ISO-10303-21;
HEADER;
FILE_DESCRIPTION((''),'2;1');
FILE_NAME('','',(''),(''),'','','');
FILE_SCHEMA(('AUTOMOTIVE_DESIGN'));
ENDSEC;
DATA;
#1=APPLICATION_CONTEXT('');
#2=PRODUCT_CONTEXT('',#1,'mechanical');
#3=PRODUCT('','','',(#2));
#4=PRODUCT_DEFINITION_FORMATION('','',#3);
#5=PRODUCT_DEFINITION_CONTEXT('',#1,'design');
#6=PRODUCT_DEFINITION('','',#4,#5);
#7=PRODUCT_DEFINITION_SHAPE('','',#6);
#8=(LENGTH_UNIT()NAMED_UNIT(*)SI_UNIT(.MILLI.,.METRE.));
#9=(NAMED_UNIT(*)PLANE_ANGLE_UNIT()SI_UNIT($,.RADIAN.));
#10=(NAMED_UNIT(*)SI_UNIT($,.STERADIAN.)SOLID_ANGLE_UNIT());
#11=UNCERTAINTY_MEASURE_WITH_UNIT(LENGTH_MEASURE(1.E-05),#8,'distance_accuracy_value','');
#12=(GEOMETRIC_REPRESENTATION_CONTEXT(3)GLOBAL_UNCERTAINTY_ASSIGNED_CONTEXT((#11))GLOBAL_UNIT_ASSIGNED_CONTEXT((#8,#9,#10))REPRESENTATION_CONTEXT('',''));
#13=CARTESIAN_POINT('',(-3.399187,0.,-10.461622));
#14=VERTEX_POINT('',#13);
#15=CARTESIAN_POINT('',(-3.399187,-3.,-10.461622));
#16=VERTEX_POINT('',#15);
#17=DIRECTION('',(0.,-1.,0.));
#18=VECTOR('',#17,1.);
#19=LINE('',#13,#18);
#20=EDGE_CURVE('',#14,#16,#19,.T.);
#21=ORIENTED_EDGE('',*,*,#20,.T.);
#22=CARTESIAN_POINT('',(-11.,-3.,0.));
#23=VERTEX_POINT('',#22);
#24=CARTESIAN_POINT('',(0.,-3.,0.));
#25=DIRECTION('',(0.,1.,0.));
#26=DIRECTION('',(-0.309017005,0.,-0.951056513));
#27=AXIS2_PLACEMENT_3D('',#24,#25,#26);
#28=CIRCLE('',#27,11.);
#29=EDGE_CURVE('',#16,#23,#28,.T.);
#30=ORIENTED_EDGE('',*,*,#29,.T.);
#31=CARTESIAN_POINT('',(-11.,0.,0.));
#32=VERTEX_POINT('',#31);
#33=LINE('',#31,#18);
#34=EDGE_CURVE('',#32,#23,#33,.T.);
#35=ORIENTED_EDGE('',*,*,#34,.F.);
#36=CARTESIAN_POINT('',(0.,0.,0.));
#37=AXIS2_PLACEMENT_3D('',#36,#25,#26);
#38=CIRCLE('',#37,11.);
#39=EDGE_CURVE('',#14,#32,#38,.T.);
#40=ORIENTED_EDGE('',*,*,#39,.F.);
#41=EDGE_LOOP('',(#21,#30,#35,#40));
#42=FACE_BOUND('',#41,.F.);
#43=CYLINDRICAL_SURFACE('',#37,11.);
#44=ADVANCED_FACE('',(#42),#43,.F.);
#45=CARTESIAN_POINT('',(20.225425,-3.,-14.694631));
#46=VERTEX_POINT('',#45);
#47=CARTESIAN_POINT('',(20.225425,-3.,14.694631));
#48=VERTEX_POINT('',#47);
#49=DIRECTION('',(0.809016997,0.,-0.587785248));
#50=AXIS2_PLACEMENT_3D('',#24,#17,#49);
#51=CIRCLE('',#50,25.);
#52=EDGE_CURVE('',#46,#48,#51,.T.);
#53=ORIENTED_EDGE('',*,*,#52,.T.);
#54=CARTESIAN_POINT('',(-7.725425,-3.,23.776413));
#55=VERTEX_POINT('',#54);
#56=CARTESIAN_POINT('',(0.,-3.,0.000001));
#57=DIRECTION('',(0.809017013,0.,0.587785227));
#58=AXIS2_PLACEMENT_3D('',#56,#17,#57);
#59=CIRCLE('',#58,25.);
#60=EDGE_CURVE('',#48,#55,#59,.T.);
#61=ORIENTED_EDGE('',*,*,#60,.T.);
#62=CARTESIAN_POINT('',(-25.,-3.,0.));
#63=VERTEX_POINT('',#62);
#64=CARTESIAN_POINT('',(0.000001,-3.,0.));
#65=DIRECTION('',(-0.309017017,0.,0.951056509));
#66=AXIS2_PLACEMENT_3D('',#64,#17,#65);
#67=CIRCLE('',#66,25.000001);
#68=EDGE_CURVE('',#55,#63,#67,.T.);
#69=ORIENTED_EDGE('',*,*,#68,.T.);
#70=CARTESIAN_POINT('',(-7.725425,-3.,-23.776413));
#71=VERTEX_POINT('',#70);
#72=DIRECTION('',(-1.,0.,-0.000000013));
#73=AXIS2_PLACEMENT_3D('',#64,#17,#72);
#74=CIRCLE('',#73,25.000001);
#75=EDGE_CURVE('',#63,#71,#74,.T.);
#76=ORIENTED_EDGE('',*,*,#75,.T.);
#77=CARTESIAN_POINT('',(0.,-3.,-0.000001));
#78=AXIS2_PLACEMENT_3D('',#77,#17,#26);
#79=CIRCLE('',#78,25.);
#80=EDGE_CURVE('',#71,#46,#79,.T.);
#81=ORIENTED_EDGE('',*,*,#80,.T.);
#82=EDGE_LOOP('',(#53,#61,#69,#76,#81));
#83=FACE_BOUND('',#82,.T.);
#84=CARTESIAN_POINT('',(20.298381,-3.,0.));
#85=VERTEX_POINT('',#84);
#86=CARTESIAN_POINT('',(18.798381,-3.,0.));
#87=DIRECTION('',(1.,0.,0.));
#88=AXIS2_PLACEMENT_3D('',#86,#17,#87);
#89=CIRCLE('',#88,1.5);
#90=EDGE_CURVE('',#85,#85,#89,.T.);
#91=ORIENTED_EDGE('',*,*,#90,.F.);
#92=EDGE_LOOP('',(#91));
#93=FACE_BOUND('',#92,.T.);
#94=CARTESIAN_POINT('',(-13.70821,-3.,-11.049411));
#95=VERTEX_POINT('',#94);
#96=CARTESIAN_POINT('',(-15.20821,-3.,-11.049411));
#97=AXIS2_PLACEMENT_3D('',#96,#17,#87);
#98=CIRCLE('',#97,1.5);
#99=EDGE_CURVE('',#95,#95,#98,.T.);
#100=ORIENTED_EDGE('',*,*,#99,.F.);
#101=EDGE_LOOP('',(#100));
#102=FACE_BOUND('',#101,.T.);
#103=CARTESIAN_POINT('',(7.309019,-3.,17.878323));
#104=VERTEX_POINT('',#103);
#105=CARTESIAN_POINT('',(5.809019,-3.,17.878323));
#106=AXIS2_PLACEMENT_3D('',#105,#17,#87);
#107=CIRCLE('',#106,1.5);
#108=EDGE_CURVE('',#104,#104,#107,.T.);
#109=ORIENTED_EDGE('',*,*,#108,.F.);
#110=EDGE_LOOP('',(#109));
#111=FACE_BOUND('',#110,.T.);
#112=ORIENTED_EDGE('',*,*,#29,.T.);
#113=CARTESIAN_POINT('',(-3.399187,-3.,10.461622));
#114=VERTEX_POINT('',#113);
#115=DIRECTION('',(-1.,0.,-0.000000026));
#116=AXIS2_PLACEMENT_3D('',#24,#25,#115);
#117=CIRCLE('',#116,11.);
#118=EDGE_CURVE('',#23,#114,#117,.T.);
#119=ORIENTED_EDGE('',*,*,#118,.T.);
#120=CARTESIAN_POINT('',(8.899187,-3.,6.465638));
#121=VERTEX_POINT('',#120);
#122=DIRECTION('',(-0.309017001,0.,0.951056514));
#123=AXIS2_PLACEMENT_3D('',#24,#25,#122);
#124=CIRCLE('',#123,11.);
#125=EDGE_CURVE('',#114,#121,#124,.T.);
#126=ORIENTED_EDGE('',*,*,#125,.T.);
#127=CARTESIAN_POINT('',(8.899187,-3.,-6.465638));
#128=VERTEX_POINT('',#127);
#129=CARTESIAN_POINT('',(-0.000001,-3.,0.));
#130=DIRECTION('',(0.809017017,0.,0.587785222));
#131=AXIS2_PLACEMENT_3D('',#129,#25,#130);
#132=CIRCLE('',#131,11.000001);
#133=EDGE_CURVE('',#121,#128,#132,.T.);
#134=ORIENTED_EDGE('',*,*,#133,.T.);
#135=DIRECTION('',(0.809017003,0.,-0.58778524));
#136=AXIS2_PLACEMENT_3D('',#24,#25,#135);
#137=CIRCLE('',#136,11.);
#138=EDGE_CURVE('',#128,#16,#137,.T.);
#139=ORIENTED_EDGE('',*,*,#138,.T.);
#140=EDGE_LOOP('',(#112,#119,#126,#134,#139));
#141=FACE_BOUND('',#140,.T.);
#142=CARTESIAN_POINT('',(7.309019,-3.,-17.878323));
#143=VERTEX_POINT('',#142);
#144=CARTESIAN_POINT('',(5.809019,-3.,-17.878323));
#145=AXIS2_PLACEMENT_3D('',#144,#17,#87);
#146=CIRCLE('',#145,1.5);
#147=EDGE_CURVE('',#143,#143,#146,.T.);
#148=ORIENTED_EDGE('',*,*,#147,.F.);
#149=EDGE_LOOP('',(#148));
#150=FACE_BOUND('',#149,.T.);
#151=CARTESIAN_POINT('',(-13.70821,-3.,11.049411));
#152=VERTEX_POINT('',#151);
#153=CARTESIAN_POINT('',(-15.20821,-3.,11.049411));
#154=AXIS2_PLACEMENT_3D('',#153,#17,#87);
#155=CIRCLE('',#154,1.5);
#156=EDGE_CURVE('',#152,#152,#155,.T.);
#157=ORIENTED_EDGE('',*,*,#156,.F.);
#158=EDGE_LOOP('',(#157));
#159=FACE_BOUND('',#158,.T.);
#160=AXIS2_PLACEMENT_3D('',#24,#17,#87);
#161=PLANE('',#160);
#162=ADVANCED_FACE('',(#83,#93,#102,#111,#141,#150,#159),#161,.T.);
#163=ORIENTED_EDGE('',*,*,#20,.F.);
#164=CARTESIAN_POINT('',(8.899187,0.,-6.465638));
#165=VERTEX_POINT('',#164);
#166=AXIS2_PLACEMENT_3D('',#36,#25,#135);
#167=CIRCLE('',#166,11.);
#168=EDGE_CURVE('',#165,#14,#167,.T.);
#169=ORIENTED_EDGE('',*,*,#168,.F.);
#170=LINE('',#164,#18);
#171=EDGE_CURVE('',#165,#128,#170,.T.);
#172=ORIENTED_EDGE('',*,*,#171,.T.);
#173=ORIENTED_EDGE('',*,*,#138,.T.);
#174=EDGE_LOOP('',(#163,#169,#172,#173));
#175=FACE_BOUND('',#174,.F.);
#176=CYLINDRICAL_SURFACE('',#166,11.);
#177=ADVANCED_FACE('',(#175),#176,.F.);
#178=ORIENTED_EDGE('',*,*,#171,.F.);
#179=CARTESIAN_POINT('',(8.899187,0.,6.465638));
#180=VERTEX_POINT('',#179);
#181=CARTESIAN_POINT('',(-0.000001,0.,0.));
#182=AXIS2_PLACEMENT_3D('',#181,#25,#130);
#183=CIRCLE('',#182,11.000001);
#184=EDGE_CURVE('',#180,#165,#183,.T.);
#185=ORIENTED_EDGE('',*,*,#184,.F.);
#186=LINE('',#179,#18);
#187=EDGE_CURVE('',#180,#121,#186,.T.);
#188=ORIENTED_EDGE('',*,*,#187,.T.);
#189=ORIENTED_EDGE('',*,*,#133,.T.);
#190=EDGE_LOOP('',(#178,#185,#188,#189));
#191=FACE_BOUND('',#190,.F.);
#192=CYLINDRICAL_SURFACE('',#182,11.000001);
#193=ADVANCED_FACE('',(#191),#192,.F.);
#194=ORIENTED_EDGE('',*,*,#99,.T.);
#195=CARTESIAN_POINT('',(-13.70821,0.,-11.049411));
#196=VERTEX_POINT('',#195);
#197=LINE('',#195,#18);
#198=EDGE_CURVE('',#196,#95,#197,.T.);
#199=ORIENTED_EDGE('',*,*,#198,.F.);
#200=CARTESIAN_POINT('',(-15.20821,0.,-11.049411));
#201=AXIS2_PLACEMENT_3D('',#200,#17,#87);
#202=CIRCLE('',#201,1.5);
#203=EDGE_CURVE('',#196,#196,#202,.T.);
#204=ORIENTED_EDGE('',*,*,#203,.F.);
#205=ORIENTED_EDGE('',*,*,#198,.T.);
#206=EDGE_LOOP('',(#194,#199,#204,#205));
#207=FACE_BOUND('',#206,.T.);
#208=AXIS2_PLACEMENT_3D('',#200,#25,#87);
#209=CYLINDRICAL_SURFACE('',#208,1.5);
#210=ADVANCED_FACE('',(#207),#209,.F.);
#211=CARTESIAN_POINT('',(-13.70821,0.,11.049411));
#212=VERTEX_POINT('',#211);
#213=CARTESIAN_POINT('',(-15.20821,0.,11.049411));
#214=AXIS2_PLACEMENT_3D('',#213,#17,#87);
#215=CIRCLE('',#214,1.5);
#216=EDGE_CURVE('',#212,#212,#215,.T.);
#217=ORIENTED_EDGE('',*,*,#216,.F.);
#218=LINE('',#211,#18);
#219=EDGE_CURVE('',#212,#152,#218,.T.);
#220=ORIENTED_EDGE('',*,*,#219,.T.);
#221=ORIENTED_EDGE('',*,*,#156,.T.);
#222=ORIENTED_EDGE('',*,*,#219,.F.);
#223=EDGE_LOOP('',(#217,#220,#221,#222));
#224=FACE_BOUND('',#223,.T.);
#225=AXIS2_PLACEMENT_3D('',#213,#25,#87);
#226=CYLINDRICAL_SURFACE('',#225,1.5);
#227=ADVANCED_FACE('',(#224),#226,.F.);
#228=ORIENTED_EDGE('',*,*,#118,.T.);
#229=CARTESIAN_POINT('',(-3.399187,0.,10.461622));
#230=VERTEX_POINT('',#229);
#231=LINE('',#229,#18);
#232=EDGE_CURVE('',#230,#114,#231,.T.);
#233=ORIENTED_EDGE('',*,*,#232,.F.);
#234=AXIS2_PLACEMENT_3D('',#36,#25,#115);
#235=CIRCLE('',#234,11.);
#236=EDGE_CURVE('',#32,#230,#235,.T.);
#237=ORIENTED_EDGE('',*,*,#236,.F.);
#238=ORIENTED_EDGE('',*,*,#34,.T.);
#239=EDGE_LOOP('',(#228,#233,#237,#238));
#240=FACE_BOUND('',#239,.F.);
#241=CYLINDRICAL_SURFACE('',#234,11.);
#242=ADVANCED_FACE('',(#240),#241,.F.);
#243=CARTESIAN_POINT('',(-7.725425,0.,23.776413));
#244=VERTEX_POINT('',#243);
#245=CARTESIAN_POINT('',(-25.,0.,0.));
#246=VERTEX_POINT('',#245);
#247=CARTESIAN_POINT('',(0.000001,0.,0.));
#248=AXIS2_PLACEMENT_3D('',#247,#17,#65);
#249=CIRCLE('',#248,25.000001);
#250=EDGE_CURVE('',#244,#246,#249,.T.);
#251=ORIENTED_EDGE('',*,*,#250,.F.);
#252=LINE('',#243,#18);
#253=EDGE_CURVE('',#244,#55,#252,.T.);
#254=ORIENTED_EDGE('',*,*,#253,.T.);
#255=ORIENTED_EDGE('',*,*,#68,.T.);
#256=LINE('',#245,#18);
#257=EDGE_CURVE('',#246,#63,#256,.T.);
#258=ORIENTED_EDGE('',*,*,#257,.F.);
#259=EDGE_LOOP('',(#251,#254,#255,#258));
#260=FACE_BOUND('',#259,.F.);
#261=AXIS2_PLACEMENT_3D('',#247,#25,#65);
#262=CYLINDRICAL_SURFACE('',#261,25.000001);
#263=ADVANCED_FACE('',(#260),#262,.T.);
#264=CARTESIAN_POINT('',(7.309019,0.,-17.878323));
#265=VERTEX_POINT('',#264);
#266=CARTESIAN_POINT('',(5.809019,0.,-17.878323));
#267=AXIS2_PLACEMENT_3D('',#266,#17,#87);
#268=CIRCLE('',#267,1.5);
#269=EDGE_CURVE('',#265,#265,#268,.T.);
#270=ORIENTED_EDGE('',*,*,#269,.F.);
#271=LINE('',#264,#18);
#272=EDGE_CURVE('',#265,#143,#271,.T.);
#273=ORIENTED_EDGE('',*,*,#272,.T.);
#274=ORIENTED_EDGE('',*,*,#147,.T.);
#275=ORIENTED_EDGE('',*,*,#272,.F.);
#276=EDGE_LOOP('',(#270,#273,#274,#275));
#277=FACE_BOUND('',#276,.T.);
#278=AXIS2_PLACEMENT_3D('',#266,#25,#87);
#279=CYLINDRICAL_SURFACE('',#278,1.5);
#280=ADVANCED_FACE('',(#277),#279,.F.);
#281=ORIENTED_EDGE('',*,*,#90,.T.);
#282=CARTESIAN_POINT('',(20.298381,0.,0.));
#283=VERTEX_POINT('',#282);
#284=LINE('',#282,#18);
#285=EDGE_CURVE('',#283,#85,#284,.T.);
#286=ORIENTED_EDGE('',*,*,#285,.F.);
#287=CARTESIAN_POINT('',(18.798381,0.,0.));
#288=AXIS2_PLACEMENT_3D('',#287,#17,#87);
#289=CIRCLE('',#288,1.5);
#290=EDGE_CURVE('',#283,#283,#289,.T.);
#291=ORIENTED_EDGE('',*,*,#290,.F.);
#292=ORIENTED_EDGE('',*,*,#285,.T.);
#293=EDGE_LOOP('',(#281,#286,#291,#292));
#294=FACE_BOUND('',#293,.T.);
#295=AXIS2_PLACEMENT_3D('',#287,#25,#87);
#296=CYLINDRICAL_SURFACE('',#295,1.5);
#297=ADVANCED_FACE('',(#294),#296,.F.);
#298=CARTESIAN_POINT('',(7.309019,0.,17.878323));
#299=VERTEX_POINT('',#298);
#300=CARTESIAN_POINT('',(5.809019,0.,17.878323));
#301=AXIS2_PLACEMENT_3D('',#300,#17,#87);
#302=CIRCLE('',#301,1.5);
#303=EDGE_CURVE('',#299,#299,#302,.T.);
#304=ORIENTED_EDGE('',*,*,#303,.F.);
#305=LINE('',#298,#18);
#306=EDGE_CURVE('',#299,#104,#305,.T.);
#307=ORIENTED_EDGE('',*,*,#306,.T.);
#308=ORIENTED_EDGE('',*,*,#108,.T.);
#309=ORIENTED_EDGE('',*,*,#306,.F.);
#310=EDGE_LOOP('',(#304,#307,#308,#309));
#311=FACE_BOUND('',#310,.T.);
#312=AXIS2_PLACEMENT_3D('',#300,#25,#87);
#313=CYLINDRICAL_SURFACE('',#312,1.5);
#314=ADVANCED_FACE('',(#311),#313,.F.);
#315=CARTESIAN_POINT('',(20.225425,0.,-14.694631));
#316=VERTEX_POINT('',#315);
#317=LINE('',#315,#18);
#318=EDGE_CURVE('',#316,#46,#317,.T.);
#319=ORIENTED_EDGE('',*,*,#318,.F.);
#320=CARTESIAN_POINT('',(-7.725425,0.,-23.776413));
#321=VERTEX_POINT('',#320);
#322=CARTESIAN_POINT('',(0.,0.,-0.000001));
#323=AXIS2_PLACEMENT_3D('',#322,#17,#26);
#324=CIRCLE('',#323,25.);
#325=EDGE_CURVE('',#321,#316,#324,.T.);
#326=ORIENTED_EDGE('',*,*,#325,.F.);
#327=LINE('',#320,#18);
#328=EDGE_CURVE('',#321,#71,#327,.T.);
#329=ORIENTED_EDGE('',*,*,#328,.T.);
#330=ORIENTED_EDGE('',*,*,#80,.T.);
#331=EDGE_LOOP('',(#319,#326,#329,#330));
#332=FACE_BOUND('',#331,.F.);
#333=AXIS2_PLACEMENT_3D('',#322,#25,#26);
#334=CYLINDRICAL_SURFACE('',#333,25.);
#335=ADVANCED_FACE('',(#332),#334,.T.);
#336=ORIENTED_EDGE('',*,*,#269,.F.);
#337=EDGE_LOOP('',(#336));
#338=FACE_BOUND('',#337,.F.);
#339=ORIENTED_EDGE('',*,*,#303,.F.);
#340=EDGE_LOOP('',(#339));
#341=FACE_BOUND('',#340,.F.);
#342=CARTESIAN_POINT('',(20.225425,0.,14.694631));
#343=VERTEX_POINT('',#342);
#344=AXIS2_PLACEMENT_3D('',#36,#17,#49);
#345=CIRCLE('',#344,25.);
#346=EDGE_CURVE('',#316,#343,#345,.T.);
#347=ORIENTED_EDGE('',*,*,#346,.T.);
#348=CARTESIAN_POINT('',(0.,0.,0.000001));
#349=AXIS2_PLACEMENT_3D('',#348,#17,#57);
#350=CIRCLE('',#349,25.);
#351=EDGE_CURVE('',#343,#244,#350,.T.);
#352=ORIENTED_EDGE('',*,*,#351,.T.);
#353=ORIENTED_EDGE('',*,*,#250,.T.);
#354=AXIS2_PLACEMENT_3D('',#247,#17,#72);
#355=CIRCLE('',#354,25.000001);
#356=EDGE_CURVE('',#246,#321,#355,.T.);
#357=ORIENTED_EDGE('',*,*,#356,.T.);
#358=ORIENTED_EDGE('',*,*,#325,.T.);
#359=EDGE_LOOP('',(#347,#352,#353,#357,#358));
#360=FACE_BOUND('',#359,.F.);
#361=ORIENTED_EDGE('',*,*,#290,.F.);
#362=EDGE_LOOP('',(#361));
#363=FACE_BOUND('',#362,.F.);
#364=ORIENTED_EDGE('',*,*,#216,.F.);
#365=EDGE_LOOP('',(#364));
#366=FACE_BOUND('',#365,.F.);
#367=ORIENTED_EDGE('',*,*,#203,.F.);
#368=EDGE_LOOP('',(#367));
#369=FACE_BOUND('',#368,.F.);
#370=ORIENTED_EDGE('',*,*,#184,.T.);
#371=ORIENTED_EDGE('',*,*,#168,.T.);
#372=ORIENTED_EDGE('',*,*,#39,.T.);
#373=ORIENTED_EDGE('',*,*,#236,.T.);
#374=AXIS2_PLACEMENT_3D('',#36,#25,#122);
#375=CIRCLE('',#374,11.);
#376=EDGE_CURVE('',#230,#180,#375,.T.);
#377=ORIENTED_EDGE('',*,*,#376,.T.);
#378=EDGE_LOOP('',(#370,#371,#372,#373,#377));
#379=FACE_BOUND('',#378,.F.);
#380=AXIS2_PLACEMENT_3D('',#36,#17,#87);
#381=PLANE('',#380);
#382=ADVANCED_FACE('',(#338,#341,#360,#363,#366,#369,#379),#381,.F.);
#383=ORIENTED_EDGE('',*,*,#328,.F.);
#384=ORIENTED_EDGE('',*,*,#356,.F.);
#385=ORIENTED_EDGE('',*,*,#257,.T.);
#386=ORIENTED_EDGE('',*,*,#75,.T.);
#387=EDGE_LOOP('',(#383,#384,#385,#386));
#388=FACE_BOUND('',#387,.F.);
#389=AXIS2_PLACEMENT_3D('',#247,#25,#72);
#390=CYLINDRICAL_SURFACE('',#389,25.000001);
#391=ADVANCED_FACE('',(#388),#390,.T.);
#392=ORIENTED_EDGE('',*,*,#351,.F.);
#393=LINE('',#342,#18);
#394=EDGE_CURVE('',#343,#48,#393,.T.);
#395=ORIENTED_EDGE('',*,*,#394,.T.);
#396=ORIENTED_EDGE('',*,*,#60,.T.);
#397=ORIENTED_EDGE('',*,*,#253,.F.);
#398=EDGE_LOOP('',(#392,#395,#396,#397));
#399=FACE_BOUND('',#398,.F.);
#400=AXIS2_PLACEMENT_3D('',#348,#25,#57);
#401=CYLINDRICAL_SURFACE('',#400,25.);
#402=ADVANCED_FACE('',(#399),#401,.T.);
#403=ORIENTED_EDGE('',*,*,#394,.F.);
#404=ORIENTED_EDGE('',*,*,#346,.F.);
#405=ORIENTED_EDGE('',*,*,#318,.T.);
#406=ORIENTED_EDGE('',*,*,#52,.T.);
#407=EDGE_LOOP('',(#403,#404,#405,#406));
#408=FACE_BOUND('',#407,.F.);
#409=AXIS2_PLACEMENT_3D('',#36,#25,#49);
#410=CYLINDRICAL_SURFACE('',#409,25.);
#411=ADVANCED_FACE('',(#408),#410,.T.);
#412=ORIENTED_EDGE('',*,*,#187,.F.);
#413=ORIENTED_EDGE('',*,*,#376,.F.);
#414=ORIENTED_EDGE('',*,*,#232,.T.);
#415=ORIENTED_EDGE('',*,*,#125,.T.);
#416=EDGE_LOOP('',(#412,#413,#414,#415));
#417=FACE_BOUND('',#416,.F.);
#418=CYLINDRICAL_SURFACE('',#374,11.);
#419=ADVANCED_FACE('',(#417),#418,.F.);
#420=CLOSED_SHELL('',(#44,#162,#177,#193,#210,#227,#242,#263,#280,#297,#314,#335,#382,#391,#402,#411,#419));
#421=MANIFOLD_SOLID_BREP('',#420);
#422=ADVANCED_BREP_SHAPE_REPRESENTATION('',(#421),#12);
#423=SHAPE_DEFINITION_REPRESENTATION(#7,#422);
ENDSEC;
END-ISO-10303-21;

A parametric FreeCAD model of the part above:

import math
import FreeCAD as App
import Part
import Sketcher

V = App.Vector
Q = App.Units.Quantity

doc = App.newDocument("Part")
params = doc.addObject("Spreadsheet::Sheet", "Params")
for row, (alias, value) in enumerate([
    ("sketch1_diameter", "3 mm"),
    ("sketch1_radius", "25 mm"),
    ("sketch1_radius2", "11 mm"),
    ("pad1_length", "3 mm"),
], start=1):
    params.set(f"A{row}", alias)
    params.set(f"B{row}", "=" + value)
    params.setAlias(f"B{row}", alias)

body = doc.addObject("PartDesign::Body", "Body")

# Sketch on XZ plane
sketch1 = body.newObject("Sketcher::SketchObject", "Sketch")
sketch1.AttachmentSupport = (doc.getObject("XZ_Plane"), [""])
sketch1.MapMode = "FlatFace"
sketch1.addGeometry(Part.ArcOfCircle(Part.Circle(V(0, 0, 0), V(0, 0, 1), 25), math.radians(36), math.radians(108)), False)
sketch1.addGeometry(Part.ArcOfCircle(Part.Circle(V(0, 0, 0), V(0, 0, 1), 25), math.radians(108), math.radians(180)), False)
sketch1.addGeometry(Part.ArcOfCircle(Part.Circle(V(0, 0, 0), V(0, 0, 1), 25), math.radians(-180), math.radians(-108)), False)
sketch1.addGeometry(Part.ArcOfCircle(Part.Circle(V(0, 0, 0), V(0, 0, 1), 25), math.radians(-108), math.radians(-36)), False)
sketch1.addGeometry(Part.ArcOfCircle(Part.Circle(V(0, 0, 0), V(0, 0, 1), 25), math.radians(-36), math.radians(36)), False)
sketch1.addGeometry(Part.Circle(V(-15.2, -11, 0), V(0, 0, 1), 1.5), False)
sketch1.addGeometry(Part.Circle(V(5.8, -17.9, 0), V(0, 0, 1), 1.5), False)
sketch1.addGeometry(Part.ArcOfCircle(Part.Circle(V(0, 0, 0), V(0, 0, 1), 11), math.radians(180), math.radians(252)), False)
sketch1.addGeometry(Part.ArcOfCircle(Part.Circle(V(0, 0, 0), V(0, 0, 1), 11), math.radians(108), math.radians(180)), False)
sketch1.addGeometry(Part.ArcOfCircle(Part.Circle(V(0, 0, 0), V(0, 0, 1), 11), math.radians(36), math.radians(108)), False)
sketch1.addGeometry(Part.ArcOfCircle(Part.Circle(V(0, 0, 0), V(0, 0, 1), 11), math.radians(-36), math.radians(36)), False)
sketch1.addGeometry(Part.ArcOfCircle(Part.Circle(V(0, 0, 0), V(0, 0, 1), 11), math.radians(-108), math.radians(-36)), False)
sketch1.addGeometry(Part.Circle(V(-15.2, 11, 0), V(0, 0, 1), 1.5), False)
sketch1.addGeometry(Part.Circle(V(18.8, 0, 0), V(0, 0, 1), 1.5), False)
sketch1.addGeometry(Part.Circle(V(5.8, 17.9, 0), V(0, 0, 1), 1.5), False)
sketch1.addConstraint(Sketcher.Constraint("Tangent", 0, 2, 1, 1))
sketch1.addConstraint(Sketcher.Constraint("Tangent", 1, 2, 2, 1))
sketch1.addConstraint(Sketcher.Constraint("Tangent", 2, 2, 3, 1))
sketch1.addConstraint(Sketcher.Constraint("Tangent", 3, 2, 4, 1))
sketch1.addConstraint(Sketcher.Constraint("Tangent", 4, 2, 0, 1))
sketch1.addConstraint(Sketcher.Constraint("Tangent", 7, 1, 8, 2))
sketch1.addConstraint(Sketcher.Constraint("Tangent", 8, 1, 9, 2))
sketch1.addConstraint(Sketcher.Constraint("Tangent", 9, 1, 10, 2))
sketch1.addConstraint(Sketcher.Constraint("Tangent", 10, 1, 11, 2))
sketch1.addConstraint(Sketcher.Constraint("Tangent", 11, 1, 7, 2))
sketch1.addConstraint(Sketcher.Constraint("Coincident", 0, 3, -1, 1))
sketch1.addConstraint(Sketcher.Constraint("Coincident", 2, 3, -1, 1))
sketch1.addConstraint(Sketcher.Constraint("Coincident", 7, 3, -1, 1))
sketch1.addConstraint(Sketcher.Constraint("Coincident", 9, 3, -1, 1))
sketch1.addConstraint(Sketcher.Constraint("Equal", 5, 6))
sketch1.addConstraint(Sketcher.Constraint("Equal", 6, 12))
sketch1.addConstraint(Sketcher.Constraint("Equal", 12, 13))
sketch1.addConstraint(Sketcher.Constraint("Equal", 13, 14))
sketch1.addConstraint(Sketcher.Constraint("Symmetric", 5, 3, 12, 3, -1))
sketch1.addConstraint(Sketcher.Constraint("Symmetric", 6, 3, 14, 3, -1))
sketch1.addConstraint(Sketcher.Constraint("PointOnObject", 13, 3, -1))
sketch1.addConstraint(Sketcher.Constraint("PointOnObject", 1, 2, -1))
sketch1.addConstraint(Sketcher.Constraint("PointOnObject", 7, 1, -1))
sketch1.addConstraint(Sketcher.Constraint("Vertical", 0, 2, 2, 2))
sketch1.addConstraint(Sketcher.Constraint("Vertical", 3, 2, 4, 2))
sketch1.addConstraint(Sketcher.Constraint("Vertical", 9, 1, 10, 1))
sketch1.addConstraint(Sketcher.Constraint("Vertical", 8, 1, 11, 1))
sketch1.addConstraint(Sketcher.Constraint("Diameter", 5, Q("3 mm")))
sketch1.addConstraint(Sketcher.Constraint("Radius", 0, Q("25 mm")))
sketch1.addConstraint(Sketcher.Constraint("Radius", 7, Q("11 mm")))
sketch1.addConstraint(Sketcher.Constraint("DistanceY", 12, 3, 0, 2, Q("12.727002 mm")))
sketch1.addConstraint(Sketcher.Constraint("DistanceX", 5, 3, -1, 1, Q("15.20821 mm")))
sketch1.addConstraint(Sketcher.Constraint("DistanceY", 5, 3, -1, 1, Q("11.049411 mm")))
sketch1.addConstraint(Sketcher.Constraint("DistanceX", -1, 1, 6, 3, Q("5.809019 mm")))
sketch1.addConstraint(Sketcher.Constraint("DistanceX", -1, 1, 13, 3, Q("18.798381 mm")))
sketch1.addConstraint(Sketcher.Constraint("DistanceY", 3, 2, -1, 1, Q("14.694631 mm")))
sketch1.addConstraint(Sketcher.Constraint("DistanceY", 10, 1, -1, 1, Q("6.465638 mm")))
sketch1.addConstraint(Sketcher.Constraint("DistanceY", 11, 1, -1, 1, Q("10.461622 mm")))
sketch1.addConstraint(Sketcher.Constraint("DistanceY", 14, 3, 0, 2, Q("5.89809 mm")))
sketch1.setExpression("Constraints[27]", "Params.sketch1_diameter")
sketch1.setExpression("Constraints[28]", "Params.sketch1_radius")
sketch1.setExpression("Constraints[29]", "Params.sketch1_radius2")
pad1 = body.newObject("PartDesign::Pad", "Pad")
pad1.Profile = sketch1
pad1.setExpression("Length", "Params.pad1_length")

doc.recompute()
